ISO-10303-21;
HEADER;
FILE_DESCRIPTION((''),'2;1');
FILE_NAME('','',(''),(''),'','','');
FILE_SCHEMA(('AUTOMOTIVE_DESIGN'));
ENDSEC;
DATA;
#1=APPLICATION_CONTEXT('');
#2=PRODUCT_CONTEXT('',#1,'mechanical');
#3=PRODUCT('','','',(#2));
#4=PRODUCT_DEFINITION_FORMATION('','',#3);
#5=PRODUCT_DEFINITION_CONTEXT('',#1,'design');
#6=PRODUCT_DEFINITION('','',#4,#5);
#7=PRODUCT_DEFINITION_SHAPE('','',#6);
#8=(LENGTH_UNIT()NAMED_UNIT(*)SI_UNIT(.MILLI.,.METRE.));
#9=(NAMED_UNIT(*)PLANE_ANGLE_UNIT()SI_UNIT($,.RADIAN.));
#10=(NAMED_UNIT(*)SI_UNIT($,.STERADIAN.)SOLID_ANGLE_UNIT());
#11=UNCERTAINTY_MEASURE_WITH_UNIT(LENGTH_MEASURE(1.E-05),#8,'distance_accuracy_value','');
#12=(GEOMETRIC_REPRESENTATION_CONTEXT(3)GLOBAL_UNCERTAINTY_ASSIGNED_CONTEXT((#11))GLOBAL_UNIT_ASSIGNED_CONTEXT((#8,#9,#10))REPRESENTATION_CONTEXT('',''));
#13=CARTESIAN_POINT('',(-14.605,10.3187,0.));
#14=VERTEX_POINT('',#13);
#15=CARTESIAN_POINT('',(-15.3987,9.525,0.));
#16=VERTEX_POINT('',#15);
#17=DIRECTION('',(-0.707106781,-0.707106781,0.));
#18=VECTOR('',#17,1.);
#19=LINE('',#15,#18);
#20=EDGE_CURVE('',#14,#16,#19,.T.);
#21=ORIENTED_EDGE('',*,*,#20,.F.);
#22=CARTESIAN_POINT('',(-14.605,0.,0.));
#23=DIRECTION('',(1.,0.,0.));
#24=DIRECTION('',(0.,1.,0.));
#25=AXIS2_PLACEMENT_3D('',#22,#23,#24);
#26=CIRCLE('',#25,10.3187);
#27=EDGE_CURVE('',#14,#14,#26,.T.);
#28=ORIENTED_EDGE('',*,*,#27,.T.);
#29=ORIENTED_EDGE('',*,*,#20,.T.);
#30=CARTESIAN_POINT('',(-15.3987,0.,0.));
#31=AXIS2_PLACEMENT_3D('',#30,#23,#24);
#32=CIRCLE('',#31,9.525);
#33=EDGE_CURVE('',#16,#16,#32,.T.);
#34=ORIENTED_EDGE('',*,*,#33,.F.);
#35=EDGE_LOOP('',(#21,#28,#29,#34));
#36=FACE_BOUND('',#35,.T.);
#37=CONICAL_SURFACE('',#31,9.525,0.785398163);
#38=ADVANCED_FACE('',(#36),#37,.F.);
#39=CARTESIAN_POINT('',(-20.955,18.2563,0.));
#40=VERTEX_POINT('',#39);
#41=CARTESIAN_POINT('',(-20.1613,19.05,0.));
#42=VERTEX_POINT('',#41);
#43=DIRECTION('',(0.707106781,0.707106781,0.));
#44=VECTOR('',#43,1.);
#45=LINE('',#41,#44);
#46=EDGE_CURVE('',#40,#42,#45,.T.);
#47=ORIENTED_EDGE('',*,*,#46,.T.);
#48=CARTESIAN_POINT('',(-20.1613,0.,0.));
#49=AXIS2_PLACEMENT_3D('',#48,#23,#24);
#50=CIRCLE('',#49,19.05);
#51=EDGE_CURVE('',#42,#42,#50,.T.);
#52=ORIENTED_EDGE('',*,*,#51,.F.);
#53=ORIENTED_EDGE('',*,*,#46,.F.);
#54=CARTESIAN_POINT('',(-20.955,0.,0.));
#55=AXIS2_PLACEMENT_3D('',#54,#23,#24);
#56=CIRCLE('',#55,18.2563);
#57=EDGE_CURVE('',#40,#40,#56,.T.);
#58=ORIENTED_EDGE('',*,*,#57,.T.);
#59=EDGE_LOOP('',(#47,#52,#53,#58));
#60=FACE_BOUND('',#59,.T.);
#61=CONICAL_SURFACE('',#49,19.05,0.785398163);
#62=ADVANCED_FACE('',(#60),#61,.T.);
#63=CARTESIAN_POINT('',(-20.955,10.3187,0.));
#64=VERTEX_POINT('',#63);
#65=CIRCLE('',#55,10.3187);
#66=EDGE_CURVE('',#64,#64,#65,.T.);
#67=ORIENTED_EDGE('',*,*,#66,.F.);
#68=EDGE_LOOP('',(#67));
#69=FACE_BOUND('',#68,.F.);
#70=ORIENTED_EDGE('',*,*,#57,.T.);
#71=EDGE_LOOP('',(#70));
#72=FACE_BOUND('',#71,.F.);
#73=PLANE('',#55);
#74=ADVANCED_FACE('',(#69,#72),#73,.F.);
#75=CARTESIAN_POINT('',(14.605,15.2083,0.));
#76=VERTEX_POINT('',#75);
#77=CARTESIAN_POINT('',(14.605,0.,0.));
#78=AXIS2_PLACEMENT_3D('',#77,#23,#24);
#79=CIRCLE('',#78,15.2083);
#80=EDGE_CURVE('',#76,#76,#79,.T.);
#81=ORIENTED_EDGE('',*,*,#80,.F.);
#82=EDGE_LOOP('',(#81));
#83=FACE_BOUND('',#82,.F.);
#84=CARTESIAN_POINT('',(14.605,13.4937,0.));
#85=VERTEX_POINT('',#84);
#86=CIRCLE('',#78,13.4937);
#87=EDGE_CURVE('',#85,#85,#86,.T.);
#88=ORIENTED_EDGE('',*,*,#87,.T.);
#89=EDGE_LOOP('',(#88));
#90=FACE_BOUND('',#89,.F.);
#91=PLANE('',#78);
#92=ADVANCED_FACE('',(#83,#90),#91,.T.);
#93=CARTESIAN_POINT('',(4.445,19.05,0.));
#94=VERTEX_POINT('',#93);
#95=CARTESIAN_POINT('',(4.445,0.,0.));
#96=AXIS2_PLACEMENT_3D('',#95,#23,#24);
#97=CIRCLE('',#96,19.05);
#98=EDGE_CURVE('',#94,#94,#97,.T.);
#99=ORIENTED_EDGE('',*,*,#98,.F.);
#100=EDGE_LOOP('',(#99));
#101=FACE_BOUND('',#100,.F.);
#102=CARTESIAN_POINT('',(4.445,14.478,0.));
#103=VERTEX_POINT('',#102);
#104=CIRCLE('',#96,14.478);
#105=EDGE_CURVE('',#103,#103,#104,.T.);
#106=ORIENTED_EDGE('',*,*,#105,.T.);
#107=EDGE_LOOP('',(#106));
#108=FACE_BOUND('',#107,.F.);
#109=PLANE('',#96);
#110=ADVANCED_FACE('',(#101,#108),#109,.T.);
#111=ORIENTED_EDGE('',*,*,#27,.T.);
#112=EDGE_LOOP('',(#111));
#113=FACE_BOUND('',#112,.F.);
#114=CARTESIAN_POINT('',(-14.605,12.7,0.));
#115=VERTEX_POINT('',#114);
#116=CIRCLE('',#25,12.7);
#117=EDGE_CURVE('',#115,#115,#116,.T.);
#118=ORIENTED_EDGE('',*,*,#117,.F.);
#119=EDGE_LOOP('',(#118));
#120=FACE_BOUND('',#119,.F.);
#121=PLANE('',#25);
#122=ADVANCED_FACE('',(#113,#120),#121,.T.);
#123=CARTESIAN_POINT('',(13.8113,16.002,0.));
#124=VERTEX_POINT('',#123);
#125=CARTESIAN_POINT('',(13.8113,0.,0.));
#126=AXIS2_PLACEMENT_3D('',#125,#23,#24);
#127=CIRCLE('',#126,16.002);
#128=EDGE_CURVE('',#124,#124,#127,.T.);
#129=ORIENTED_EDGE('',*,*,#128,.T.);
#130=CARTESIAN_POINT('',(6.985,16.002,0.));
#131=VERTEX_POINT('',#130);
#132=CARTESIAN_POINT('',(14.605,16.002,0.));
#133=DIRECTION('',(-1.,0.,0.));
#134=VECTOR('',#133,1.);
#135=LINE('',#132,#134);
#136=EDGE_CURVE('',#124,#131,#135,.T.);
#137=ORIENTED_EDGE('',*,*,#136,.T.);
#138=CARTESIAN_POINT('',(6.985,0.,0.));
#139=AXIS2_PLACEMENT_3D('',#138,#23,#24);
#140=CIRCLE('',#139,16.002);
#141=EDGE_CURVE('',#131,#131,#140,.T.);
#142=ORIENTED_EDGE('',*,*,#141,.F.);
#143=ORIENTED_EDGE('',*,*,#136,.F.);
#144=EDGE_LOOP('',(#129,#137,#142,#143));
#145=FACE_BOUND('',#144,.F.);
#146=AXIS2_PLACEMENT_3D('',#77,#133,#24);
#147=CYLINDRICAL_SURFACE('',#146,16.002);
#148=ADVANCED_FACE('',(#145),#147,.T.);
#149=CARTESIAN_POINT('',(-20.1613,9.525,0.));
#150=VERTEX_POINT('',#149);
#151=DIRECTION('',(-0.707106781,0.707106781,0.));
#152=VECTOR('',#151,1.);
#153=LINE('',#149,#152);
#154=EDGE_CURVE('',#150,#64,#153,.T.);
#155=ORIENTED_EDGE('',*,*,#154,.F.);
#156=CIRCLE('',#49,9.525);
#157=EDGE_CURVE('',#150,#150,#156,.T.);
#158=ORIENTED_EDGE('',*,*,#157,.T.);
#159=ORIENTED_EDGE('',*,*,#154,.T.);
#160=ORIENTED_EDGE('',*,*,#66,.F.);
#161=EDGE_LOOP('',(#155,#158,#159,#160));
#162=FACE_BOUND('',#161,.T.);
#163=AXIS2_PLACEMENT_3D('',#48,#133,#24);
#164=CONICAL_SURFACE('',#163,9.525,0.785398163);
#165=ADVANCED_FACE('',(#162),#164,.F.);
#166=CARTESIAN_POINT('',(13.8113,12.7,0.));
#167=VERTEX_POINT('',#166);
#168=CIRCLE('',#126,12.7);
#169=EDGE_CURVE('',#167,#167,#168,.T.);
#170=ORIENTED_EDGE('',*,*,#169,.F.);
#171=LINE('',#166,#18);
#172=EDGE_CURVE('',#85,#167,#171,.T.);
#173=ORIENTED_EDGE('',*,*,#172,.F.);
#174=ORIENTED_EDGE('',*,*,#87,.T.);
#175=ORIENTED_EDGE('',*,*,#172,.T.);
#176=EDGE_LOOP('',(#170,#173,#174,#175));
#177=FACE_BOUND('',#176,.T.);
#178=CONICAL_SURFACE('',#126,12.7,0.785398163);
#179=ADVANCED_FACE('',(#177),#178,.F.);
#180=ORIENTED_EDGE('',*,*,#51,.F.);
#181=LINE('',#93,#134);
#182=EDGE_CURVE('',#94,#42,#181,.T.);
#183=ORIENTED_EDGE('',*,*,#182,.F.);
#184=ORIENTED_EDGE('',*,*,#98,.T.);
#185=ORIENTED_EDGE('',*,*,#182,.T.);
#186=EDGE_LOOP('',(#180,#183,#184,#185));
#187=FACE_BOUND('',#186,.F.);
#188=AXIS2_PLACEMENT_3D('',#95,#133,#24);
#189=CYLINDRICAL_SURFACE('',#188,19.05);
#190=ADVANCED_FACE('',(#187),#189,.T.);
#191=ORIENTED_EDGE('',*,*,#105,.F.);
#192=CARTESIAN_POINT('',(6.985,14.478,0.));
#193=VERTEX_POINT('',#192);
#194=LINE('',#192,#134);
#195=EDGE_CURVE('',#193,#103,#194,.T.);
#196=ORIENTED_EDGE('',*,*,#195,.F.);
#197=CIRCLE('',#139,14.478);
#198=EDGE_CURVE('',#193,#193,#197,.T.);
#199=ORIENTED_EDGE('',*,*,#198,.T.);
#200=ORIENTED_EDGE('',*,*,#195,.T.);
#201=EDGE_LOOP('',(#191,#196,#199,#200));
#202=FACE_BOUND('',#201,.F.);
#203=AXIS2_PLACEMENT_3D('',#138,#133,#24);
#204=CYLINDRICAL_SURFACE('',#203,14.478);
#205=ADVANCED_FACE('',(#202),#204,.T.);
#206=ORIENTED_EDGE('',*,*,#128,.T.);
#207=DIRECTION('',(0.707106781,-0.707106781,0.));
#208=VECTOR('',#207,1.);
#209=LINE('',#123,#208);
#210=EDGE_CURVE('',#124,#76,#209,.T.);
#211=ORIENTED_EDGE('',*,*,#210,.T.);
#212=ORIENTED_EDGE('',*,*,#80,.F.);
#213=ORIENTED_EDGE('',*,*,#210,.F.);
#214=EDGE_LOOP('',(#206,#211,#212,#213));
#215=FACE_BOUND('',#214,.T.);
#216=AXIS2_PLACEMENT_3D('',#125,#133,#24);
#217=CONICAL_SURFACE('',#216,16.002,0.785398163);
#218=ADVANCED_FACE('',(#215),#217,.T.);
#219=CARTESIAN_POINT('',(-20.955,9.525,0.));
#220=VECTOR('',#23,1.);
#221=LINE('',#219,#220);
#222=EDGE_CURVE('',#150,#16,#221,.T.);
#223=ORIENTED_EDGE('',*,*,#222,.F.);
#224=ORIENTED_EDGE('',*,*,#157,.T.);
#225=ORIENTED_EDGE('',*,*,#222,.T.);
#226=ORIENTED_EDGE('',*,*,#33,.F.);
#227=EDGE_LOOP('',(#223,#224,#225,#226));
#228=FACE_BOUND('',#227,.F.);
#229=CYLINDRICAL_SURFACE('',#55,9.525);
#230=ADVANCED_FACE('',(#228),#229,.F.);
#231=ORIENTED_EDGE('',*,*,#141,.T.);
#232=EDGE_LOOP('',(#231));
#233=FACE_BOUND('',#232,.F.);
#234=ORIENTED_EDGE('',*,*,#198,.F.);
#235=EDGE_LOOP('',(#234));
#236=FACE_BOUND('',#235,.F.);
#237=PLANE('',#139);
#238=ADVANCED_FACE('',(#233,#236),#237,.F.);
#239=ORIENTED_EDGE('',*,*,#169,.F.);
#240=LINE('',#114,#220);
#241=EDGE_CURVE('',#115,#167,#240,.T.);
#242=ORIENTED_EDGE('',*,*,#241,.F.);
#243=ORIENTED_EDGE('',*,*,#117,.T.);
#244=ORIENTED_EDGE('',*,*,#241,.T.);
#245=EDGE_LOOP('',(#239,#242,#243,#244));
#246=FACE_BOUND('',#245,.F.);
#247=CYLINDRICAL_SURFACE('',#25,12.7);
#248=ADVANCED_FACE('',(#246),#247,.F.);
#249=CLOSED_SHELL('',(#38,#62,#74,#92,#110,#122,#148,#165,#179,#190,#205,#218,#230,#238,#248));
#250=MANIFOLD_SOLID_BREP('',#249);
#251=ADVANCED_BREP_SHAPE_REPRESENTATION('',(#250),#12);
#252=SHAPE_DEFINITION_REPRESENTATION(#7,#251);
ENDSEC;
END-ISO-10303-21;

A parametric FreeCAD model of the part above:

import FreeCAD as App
import Part
import Sketcher

V = App.Vector
Q = App.Units.Quantity


def edges_at(feature, points):
    """Names of the edges that pass closest to the given points."""
    edges = feature.Shape.Edges
    near = lambda p: min(range(len(edges)), key=lambda i: edges[i].distToShape(Part.Vertex(*p))[0])
    return sorted({f"Edge{near(p) + 1}" for p in points})

doc = App.newDocument("Part")
params = doc.addObject("Spreadsheet::Sheet", "Params")
for row, (alias, value) in enumerate([
    ("sketch1_width", "1 in"),
    ("sketch1_width2", "0.1 in"),
    ("sketch1_width3", "0.25 in"),
    ("sketch1_height", "0.06 in"),
    ("sketch1_height2", "0.13 in"),
    ("revolution_angle", "360 deg"),
    ("chamfer_size", "0.031248 in"),
], start=1):
    params.set(f"A{row}", alias)
    params.set(f"B{row}", "=" + value)
    params.setAlias(f"B{row}", alias)

body = doc.addObject("PartDesign::Body", "Body")

# Sketch on XY plane
sketch1 = body.newObject("Sketcher::SketchObject", "Sketch")
sketch1.AttachmentSupport = (doc.getObject("XY_Plane"), [""])
sketch1.MapMode = "FlatFace"
sketch1.addGeometry([
    Part.LineSegment(V(-14.605, 9.525, 0), V(-14.605, 12.7, 0)),  # 0
    Part.LineSegment(V(-14.605, 12.7, 0), V(14.605, 12.7, 0)),  # 1
    Part.LineSegment(V(14.605, 12.7, 0), V(14.605, 16.002, 0)),  # 2
    Part.LineSegment(V(14.605, 16.002, 0), V(6.985, 16.002, 0)),  # 3
    Part.LineSegment(V(6.985, 16.002, 0), V(6.985, 14.478, 0)),  # 4
    Part.LineSegment(V(6.985, 14.478, 0), V(4.445, 14.478, 0)),  # 5
    Part.LineSegment(V(4.445, 14.478, 0), V(4.445, 19.05, 0)),  # 6
    Part.LineSegment(V(4.445, 19.05, 0), V(-20.955, 19.05, 0)),  # 7
    Part.LineSegment(V(-20.955, 19.05, 0), V(-20.955, 9.525, 0)),  # 8
    Part.LineSegment(V(-20.955, 9.525, 0), V(-14.605, 9.525, 0)),  # 9
], False)
sketch1.addConstraint([
    Sketcher.Constraint("Coincident", 0, 2, 1, 1),
    Sketcher.Constraint("Coincident", 1, 2, 2, 1),
    Sketcher.Constraint("Coincident", 2, 2, 3, 1),
    Sketcher.Constraint("Coincident", 3, 2, 4, 1),
    Sketcher.Constraint("Coincident", 4, 2, 5, 1),
    Sketcher.Constraint("Coincident", 5, 2, 6, 1),
    Sketcher.Constraint("Coincident", 6, 2, 7, 1),
    Sketcher.Constraint("Coincident", 7, 2, 8, 1),
    Sketcher.Constraint("Coincident", 8, 2, 9, 1),
    Sketcher.Constraint("Coincident", 9, 2, 0, 1),
    Sketcher.Constraint("Vertical", 0),
    Sketcher.Constraint("Horizontal", 1),
    Sketcher.Constraint("Vertical", 2),
    Sketcher.Constraint("Horizontal", 3),
    Sketcher.Constraint("Vertical", 4),
    Sketcher.Constraint("Horizontal", 5),
    Sketcher.Constraint("Vertical", 6),
    Sketcher.Constraint("Horizontal", 7),
    Sketcher.Constraint("Vertical", 8),
    Sketcher.Constraint("Horizontal", 9),
    Sketcher.Constraint("DistanceX", 7, 2, 7, 1, Q("1 in")),
    Sketcher.Constraint("DistanceX", 5, 2, 5, 1, Q("0.1 in")),
    Sketcher.Constraint("DistanceX", 9, 1, 9, 2, Q("0.25 in")),
    Sketcher.Constraint("DistanceY", 4, 2, 4, 1, Q("0.06 in")),
    Sketcher.Constraint("DistanceX", 5, 2, 2, 2, Q("0.4 in")),
    Sketcher.Constraint("DistanceY", -1, 1, 6, 2, Q("0.75 in")),
    Sketcher.Constraint("DistanceY", 1, 2, 6, 2, Q("0.25 in")),
    Sketcher.Constraint("DistanceY", 2, 1, 2, 2, Q("0.13 in")),
    Sketcher.Constraint("DistanceY", 0, 1, 0, 2, Q("0.125 in")),
    Sketcher.Constraint("DistanceX", 0, 2, -1, 1, Q("0.575 in")),
])
sketch1.setExpression("Constraints[20]", "Params.sketch1_width")
sketch1.setExpression("Constraints[21]", "Params.sketch1_width2")
sketch1.setExpression("Constraints[22]", "Params.sketch1_width3")
sketch1.setExpression("Constraints[23]", "Params.sketch1_height")
sketch1.setExpression("Constraints[27]", "Params.sketch1_height2")
revolution = body.newObject("PartDesign::Revolution", "Revolution")
revolution.Profile = sketch1
revolution.ReferenceAxis = (sketch1, ["H_Axis"])
revolution.setExpression("Angle", "Params.revolution_angle")
doc.recompute()

chamfer = body.newObject("PartDesign::Chamfer", "Chamfer")
chamfer.Base = (revolution, edges_at(revolution, [
    (14.605, -16.002, 0),
    (14.605, -12.7, 0),
    (-14.605, -9.525, 0),
    (-20.955, -9.525, 0),
    (-20.955, -19.05, 0),
]))
chamfer.setExpression("Size", "Params.chamfer_size")

doc.recompute()
